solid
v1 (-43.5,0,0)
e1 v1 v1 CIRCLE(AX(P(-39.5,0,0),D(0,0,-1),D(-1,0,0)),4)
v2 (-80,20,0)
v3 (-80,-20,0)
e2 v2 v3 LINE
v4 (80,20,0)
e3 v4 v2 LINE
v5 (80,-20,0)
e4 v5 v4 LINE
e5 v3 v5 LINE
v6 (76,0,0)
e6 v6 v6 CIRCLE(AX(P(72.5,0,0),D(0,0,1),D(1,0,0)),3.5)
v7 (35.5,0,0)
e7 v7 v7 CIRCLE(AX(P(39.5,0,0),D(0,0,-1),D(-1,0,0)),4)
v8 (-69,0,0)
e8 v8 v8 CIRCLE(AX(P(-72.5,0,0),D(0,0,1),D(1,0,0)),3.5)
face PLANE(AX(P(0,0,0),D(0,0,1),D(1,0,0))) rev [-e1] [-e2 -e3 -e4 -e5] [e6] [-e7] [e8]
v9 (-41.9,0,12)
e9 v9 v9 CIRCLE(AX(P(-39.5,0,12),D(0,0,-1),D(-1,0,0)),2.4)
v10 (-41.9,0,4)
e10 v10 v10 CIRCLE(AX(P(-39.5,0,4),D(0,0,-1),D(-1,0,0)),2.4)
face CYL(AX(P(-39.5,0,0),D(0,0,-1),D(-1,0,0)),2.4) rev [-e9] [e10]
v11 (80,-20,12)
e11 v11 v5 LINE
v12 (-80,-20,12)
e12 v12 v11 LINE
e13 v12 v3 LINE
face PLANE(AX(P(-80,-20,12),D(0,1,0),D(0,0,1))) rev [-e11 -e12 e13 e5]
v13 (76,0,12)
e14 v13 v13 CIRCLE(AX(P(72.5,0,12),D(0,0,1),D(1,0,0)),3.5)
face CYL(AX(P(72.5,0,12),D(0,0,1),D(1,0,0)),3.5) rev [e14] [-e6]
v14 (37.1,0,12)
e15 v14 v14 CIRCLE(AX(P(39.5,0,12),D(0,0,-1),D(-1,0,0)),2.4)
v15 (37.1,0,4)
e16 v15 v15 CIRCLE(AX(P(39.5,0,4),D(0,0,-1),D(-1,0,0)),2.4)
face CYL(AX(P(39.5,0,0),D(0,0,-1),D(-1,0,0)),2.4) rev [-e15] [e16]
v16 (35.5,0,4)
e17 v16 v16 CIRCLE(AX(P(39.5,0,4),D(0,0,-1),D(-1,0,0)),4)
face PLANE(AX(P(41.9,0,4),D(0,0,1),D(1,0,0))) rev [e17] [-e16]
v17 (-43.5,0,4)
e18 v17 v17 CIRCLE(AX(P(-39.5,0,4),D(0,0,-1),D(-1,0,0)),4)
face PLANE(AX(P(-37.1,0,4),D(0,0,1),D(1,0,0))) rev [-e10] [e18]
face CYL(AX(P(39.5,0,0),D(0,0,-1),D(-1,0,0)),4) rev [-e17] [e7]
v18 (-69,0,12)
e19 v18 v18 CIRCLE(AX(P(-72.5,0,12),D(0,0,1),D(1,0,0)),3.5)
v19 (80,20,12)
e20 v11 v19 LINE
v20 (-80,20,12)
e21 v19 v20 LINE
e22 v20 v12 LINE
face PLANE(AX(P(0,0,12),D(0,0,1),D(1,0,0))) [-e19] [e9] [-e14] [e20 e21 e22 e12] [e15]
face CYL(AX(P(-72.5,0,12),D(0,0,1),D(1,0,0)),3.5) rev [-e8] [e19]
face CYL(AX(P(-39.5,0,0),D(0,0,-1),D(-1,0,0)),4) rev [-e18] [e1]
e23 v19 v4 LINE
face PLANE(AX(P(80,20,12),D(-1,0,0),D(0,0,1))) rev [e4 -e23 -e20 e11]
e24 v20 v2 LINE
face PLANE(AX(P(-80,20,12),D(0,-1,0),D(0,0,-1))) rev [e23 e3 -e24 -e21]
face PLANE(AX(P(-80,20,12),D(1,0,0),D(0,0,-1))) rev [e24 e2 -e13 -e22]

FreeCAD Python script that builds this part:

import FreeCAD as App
import Part
import Sketcher
from FreeCAD import Vector
Q = App.Units.Quantity

doc = App.newDocument("Part")
body = doc.addObject("PartDesign::Body", "Body")

# Sketch on XY plane
sketch1 = body.newObject("Sketcher::SketchObject", "Sketch")
sketch1.AttachmentSupport = (doc.getObject("XY_Plane"), [""])
sketch1.MapMode = "FlatFace"
sketch1.addGeometry([
    Part.LineSegment(Vector(-80, 20, 0), Vector(-80, -20, 0)),
    Part.LineSegment(Vector(-80, -20, 0), Vector(80, -20, 0)),
    Part.LineSegment(Vector(80, -20, 0), Vector(80, 20, 0)),
    Part.LineSegment(Vector(80, 20, 0), Vector(-80, 20, 0)),
], False)
sketch1.addConstraint([
    Sketcher.Constraint("Coincident", 0, 2, 1, 1),
    Sketcher.Constraint("Coincident", 1, 2, 2, 1),
    Sketcher.Constraint("Coincident", 2, 2, 3, 1),
    Sketcher.Constraint("Coincident", 3, 2, 0, 1),
    Sketcher.Constraint("Vertical", 0),
    Sketcher.Constraint("Horizontal", 1),
    Sketcher.Constraint("Vertical", 2),
    Sketcher.Constraint("Horizontal", 3),
    Sketcher.Constraint("Symmetric", 0, 2, 2, 2, -1, 1),
    Sketcher.Constraint("DistanceX", 1, 1, 1, 2, Q("160 mm")),
    Sketcher.Constraint("DistanceY", 0, 2, 0, 1, Q("40 mm")),
])
pad1 = body.newObject("PartDesign::Pad", "Pad")
pad1.Profile = sketch1
pad1.Length = 12

# Sketch on XY plane
sketch2 = body.newObject("Sketcher::SketchObject", "Sketch001")
sketch2.AttachmentSupport = (doc.getObject("XY_Plane"), [""])
sketch2.MapMode = "FlatFace"
sketch2.AttachmentOffset = App.Placement(Vector(0, 0, 12), App.Rotation())
sketch2.addGeometry([
    Part.Circle(Vector(-72.5, 0, 0), Vector(0, 0, 1), 3.5),
    Part.Circle(Vector(72.5, 0, 0), Vector(0, 0, 1), 3.5),
], False)
sketch2.addConstraint([
    Sketcher.Constraint("Equal", 0, 1),
    Sketcher.Constraint("Symmetric", 0, 3, 1, 3, -1, 1),
    Sketcher.Constraint("PointOnObject", 0, 3, -1),
    Sketcher.Constraint("Diameter", 0, Q("7 mm")),
    Sketcher.Constraint("DistanceX", 0, 3, 1, 3, Q("145 mm")),
])
doc.recompute()
hole = body.newObject("PartDesign::Hole", "Hole")
hole.Profile = sketch2
hole.ThreadType = "None"
hole.Diameter = 7
hole.DepthType = "ThroughAll"

# Sketch on XY plane
sketch3 = body.newObject("Sketcher::SketchObject", "Sketch002")
sketch3.AttachmentSupport = (doc.getObject("XY_Plane"), [""])
sketch3.MapMode = "FlatFace"
sketch3.addGeometry([
    Part.Circle(Vector(39.5, 0, 0), Vector(0, 0, 1), 2.4),
    Part.Circle(Vector(-39.5, 0, 0), Vector(0, 0, 1), 2.4),
], False)
sketch3.addConstraint([
    Sketcher.Constraint("Equal", 0, 1),
    Sketcher.Constraint("Symmetric", 0, 3, 1, 3, -1, 1),
    Sketcher.Constraint("PointOnObject", 0, 3, -1),
    Sketcher.Constraint("Diameter", 0, Q("4.8 mm")),
    Sketcher.Constraint("DistanceX", 1, 3, 0, 3, Q("79 mm")),
])
doc.recompute()
hole2 = body.newObject("PartDesign::Hole", "Hole001")
hole2.Profile = sketch3
hole2.ThreadType = "None"
hole2.Diameter = 4.8
hole2.DepthType = "ThroughAll"
hole2.HoleCutType = "Counterbore"
hole2.HoleCutDiameter = 8
hole2.HoleCutDepth = 4
hole2.Reversed = True

doc.recompute()
